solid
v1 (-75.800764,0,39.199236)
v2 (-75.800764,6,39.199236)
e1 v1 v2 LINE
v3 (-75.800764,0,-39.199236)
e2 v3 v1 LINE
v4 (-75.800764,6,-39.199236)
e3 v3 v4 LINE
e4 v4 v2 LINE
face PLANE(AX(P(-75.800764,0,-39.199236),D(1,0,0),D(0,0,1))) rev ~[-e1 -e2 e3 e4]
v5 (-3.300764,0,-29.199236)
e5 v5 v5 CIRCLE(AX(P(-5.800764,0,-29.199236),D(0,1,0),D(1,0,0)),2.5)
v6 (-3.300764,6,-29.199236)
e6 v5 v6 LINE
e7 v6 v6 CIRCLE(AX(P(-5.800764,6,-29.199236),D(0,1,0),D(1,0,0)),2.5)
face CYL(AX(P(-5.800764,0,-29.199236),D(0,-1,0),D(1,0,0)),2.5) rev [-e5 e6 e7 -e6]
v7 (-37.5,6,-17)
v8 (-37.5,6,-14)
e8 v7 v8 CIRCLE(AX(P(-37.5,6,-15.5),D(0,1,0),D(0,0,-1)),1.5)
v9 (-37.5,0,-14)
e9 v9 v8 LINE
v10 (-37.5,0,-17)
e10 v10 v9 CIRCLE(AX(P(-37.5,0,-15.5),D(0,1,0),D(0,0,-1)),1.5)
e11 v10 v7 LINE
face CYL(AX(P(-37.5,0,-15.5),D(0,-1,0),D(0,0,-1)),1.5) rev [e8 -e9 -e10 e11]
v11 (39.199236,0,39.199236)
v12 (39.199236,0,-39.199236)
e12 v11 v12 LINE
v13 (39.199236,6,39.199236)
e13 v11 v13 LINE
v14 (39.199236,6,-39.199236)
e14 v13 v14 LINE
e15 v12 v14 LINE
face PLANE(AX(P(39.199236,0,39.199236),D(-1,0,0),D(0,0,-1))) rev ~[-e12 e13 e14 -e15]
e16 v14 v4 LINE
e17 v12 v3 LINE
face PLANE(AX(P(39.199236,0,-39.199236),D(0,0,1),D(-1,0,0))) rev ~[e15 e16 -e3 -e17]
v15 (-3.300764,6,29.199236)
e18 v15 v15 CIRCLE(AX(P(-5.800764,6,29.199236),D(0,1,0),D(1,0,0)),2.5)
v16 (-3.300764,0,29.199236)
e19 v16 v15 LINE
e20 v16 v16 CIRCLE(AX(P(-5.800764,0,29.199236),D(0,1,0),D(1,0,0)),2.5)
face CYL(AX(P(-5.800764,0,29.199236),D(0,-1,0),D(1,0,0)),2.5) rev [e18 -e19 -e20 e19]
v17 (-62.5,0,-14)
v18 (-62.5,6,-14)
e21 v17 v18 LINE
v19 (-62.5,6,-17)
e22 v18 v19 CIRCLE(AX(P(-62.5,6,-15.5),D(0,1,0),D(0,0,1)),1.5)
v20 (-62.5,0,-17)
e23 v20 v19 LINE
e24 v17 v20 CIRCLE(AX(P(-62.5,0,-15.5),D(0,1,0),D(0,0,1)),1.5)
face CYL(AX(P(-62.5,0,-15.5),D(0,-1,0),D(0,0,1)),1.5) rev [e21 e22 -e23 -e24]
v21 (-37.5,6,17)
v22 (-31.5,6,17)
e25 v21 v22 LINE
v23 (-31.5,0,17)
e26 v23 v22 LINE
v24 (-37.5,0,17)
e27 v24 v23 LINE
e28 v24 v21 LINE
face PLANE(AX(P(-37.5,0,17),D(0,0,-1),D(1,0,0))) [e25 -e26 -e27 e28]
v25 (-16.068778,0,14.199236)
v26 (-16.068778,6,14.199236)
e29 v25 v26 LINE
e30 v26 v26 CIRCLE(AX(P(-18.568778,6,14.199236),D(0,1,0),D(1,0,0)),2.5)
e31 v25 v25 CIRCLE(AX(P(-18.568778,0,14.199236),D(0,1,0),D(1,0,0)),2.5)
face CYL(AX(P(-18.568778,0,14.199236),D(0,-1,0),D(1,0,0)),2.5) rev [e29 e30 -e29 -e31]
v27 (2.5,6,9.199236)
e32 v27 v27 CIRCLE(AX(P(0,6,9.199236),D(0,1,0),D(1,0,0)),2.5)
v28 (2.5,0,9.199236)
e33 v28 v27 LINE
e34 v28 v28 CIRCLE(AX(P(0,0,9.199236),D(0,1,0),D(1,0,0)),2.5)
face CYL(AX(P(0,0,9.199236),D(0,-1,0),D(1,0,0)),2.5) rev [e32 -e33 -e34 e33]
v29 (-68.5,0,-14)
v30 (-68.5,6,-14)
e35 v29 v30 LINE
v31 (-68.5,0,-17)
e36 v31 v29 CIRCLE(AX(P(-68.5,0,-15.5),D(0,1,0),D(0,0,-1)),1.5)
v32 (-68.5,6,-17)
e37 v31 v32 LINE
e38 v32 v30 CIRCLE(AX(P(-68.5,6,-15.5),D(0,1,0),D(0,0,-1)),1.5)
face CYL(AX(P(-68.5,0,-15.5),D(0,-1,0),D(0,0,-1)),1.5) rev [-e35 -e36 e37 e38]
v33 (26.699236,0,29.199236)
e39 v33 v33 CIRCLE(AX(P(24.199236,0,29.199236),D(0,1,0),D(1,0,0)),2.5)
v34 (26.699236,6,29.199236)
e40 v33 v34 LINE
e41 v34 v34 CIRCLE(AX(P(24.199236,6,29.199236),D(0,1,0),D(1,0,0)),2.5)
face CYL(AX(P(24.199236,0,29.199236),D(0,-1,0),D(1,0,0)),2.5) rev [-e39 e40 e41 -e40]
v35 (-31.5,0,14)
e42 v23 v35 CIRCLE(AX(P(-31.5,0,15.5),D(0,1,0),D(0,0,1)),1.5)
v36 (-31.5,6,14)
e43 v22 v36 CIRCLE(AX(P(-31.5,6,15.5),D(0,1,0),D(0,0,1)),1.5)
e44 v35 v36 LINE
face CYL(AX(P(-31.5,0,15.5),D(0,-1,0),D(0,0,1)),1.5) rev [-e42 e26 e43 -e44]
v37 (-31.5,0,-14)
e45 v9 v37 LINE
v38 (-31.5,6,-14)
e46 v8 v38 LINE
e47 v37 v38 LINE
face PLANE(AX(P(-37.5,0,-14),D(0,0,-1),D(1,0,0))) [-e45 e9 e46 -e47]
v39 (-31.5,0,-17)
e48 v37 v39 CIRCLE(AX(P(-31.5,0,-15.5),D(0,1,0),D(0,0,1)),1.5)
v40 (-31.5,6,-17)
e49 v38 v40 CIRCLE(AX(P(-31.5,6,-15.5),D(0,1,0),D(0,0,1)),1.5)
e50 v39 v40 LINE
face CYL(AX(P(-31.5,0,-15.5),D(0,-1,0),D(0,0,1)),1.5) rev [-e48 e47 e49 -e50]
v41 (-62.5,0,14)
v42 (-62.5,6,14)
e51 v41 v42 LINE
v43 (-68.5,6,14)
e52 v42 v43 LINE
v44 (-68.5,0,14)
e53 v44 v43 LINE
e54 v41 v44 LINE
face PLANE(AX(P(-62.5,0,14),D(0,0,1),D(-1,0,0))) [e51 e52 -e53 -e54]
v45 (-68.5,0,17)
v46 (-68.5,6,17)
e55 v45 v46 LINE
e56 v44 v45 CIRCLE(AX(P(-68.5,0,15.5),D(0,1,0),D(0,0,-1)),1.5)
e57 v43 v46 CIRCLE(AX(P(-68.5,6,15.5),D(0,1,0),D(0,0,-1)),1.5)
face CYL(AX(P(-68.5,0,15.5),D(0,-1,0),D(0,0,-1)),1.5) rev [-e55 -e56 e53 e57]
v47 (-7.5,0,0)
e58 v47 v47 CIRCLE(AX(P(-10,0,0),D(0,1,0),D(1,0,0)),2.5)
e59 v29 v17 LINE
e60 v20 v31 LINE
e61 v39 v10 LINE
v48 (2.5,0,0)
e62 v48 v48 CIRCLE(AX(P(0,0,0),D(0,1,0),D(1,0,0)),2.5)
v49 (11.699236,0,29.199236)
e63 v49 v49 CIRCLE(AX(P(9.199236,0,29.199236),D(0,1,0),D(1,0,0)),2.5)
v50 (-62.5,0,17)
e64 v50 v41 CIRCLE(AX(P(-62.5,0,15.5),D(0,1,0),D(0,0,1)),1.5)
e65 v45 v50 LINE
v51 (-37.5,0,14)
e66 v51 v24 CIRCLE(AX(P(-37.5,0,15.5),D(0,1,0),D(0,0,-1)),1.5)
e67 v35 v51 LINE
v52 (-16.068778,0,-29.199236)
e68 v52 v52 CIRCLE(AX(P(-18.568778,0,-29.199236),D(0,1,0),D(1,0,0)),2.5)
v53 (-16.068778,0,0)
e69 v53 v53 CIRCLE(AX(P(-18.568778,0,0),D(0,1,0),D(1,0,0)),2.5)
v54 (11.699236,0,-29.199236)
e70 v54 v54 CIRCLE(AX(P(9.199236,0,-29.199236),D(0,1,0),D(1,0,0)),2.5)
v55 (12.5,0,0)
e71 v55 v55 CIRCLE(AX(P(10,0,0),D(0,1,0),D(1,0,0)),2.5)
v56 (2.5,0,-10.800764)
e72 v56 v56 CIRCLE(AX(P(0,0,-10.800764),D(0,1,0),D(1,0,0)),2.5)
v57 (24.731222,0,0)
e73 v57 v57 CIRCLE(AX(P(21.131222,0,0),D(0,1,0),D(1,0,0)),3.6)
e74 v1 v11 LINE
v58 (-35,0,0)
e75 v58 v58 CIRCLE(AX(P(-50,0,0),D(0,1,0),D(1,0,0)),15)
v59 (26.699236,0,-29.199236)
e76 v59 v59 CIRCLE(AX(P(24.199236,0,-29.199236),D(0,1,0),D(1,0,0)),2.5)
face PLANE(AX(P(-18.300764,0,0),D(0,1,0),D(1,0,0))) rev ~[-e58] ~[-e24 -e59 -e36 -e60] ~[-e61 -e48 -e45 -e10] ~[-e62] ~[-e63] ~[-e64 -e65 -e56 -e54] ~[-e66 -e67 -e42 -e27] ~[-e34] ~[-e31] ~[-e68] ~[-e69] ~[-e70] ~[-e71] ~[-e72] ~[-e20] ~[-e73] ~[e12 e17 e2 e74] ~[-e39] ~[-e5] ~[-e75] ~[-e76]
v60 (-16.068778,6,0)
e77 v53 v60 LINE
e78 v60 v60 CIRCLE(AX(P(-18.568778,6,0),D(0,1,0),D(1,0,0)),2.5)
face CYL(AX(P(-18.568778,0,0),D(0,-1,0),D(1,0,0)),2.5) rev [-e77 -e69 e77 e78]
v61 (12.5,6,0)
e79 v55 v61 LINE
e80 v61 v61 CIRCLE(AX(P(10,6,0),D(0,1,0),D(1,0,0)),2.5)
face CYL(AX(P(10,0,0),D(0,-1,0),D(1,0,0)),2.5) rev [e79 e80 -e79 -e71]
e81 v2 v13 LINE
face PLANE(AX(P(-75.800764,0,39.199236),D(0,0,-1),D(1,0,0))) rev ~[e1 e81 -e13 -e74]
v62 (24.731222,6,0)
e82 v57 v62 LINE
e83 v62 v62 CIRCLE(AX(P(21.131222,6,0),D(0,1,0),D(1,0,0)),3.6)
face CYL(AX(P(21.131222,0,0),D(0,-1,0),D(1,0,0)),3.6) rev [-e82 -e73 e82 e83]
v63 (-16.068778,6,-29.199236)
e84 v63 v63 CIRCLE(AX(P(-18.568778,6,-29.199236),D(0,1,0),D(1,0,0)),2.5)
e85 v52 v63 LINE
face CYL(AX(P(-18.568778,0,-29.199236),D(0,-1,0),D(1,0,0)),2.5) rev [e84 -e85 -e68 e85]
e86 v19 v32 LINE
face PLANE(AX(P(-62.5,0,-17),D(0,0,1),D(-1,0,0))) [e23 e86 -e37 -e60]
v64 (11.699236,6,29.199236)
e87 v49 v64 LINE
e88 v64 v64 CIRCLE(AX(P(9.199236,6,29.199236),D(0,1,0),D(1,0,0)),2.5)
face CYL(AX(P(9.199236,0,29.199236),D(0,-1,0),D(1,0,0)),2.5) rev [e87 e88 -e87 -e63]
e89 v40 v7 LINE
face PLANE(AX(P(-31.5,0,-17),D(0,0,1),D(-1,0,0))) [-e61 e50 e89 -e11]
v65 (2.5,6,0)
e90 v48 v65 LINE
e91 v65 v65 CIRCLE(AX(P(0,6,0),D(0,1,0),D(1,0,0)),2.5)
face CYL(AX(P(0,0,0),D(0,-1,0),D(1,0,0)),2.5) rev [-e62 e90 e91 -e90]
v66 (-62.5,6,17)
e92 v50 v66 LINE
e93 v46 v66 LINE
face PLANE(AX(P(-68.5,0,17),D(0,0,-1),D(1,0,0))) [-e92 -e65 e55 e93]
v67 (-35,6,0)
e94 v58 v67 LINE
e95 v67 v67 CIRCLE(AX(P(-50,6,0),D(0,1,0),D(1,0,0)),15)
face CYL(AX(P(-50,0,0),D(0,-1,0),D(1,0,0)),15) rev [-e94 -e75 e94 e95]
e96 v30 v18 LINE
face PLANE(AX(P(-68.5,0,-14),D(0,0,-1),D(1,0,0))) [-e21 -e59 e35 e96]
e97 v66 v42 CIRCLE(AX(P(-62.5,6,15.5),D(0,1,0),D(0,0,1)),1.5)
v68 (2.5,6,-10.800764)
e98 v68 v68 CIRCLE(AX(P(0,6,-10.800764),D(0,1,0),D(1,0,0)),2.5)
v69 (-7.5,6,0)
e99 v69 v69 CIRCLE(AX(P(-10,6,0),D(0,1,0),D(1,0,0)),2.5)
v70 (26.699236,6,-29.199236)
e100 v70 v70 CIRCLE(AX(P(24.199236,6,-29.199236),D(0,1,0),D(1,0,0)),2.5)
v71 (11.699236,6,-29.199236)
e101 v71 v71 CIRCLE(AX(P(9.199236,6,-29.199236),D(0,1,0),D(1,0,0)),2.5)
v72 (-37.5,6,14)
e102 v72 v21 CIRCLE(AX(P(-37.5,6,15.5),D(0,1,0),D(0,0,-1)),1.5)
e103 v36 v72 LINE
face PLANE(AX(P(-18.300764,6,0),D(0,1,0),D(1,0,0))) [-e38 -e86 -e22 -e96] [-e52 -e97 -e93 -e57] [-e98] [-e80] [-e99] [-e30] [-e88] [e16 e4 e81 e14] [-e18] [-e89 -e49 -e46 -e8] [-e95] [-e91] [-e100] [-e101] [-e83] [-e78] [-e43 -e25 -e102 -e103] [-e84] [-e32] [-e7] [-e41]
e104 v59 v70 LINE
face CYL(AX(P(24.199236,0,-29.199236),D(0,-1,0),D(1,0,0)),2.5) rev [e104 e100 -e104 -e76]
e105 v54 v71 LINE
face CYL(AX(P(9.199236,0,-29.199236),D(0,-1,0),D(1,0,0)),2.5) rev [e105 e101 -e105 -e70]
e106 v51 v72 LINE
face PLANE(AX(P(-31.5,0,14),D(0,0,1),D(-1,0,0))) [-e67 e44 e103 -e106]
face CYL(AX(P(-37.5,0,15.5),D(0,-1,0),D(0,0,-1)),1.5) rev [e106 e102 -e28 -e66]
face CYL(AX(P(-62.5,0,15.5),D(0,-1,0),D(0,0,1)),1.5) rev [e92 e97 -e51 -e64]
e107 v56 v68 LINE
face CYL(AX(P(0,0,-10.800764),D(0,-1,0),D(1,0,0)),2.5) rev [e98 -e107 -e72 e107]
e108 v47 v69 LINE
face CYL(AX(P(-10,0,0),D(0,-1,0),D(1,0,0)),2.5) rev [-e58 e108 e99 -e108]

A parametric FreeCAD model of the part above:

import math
import FreeCAD as App
import Part
import Sketcher
from FreeCAD import Vector
Q = App.Units.Quantity


def add_polygon(sketch, points):
    """Adds a closed chain of lines whose ends are joined by coincident constraints."""
    first, n = sketch.GeometryCount, len(points)
    for a, b in zip(points, points[1:] + points[:1]):
        sketch.addGeometry(Part.LineSegment(App.Vector(*a, 0), App.Vector(*b, 0)), False)
    for i in range(n):
        sketch.addConstraint(Sketcher.Constraint("Coincident", first + i, 2, first + (i + 1) % n, 1))

doc = App.newDocument("Part")
params = doc.addObject("Spreadsheet::Sheet", "Params")
for row, (alias, value) in enumerate([
    ("sketch1_width", "115 mm"),
    ("pad1_length", "6 mm"),
    ("sketch2_diameter", "5 mm"),
    ("sketch2_diameter2", "30 mm"),
    ("sketch2_diameter3", "7.2 mm"),
    ("sketch2_radius", "1.5 mm"),
    ("sketch2_width", "6 mm"),
    ("pocket1_length", "6 mm"),
], start=1):
    params.set(f"A{row}", alias)
    params.set(f"B{row}", "=" + value)
    params.setAlias(f"B{row}", alias)

body = doc.addObject("PartDesign::Body", "Body")

# Sketch on XZ plane
sketch1 = body.newObject("Sketcher::SketchObject", "Sketch")
sketch1.AttachmentSupport = (doc.getObject("XZ_Plane"), [""])
sketch1.MapMode = "FlatFace"
add_polygon(sketch1, [(39, 39), (39, -39), (-76, -39), (-76, 39)])  # lines 0-3
sketch1.addConstraint([
    Sketcher.Constraint("Vertical", 0),
    Sketcher.Constraint("Horizontal", 1),
    Sketcher.Constraint("Vertical", 2),
    Sketcher.Constraint("Horizontal", 3),
    Sketcher.Constraint("DistanceX", 1, 2, 1, 1, Q("115 mm")),
    Sketcher.Constraint("DistanceY", 0, 2, 0, 1, Q("78.398473 mm")),
    Sketcher.Constraint("DistanceX", -1, 1, 0, 2, Q("39.199236 mm")),
    Sketcher.Constraint("DistanceY", 0, 2, -1, 1, Q("39.199236 mm")),
])
sketch1.setExpression("Constraints[8]", "Params.sketch1_width")
pad1 = body.newObject("PartDesign::Pad", "Pad")
pad1.Profile = sketch1
pad1.setExpression("Length", "Params.pad1_length")
pad1.Reversed = True

# Sketch on XZ plane
sketch2 = body.newObject("Sketcher::SketchObject", "Sketch001")
sketch2.AttachmentSupport = (doc.getObject("XZ_Plane"), [""])
sketch2.MapMode = "FlatFace"
sketch2.addGeometry([
    Part.Circle(Vector(-18.6, -29.2, 0), Vector(0, 0, 1), 2.5),  # 0
    Part.Circle(Vector(-18.6, 14.2, 0), Vector(0, 0, 1), 2.5),  # 1
    Part.Circle(Vector(24.2, -29.2, 0), Vector(0, 0, 1), 2.5),  # 2
    Part.Circle(Vector(9.2, -29.2, 0), Vector(0, 0, 1), 2.5),  # 3
    Part.Circle(Vector(21.1, 0, 0), Vector(0, 0, 1), 3.6),  # 4
    Part.Circle(Vector(0, 0, 0), Vector(0, 0, 1), 2.5),  # 5
    Part.Circle(Vector(-10, 0, 0), Vector(0, 0, 1), 2.5),  # 6
    Part.Circle(Vector(-18.6, 0, 0), Vector(0, 0, 1), 2.5),  # 7
    Part.Circle(Vector(10, 0, 0), Vector(0, 0, 1), 2.5),  # 8
    Part.Circle(Vector(-5.8, -29.2, 0), Vector(0, 0, 1), 2.5),  # 9
    Part.Circle(Vector(-5.8, 29.2, 0), Vector(0, 0, 1), 2.5),  # 10
    Part.Circle(Vector(24.2, 29.2, 0), Vector(0, 0, 1), 2.5),  # 11
    Part.Circle(Vector(9.2, 29.2, 0), Vector(0, 0, 1), 2.5),  # 12
    Part.Circle(Vector(0, 9.2, 0), Vector(0, 0, 1), 2.5),  # 13
    Part.Circle(Vector(0, -10.8, 0), Vector(0, 0, 1), 2.5),  # 14
    Part.Circle(Vector(-50, 0, 0), Vector(0, 0, 1), 15),  # 15
    Part.LineSegment(Vector(-68.5, -14, 0), Vector(-62.5, -14, 0)),  # 16
    Part.ArcOfCircle(Part.Circle(Vector(-62.5, -15.5, 0), Vector(0, 0, 1), 1.5), math.radians(-90), math.radians(90)),  # 17
    Part.LineSegment(Vector(-62.5, -17, 0), Vector(-68.5, -17, 0)),  # 18
    Part.ArcOfCircle(Part.Circle(Vector(-68.5, -15.5, 0), Vector(0, 0, 1), 1.5), math.radians(90), math.radians(270)),  # 19
    Part.LineSegment(Vector(-37.5, -14, 0), Vector(-31.5, -14, 0)),  # 20
    Part.ArcOfCircle(Part.Circle(Vector(-31.5, -15.5, 0), Vector(0, 0, 1), 1.5), math.radians(-90), math.radians(90)),  # 21
    Part.LineSegment(Vector(-31.5, -17, 0), Vector(-37.5, -17, 0)),  # 22
    Part.ArcOfCircle(Part.Circle(Vector(-37.5, -15.5, 0), Vector(0, 0, 1), 1.5), math.radians(90), math.radians(270)),  # 23
    Part.LineSegment(Vector(-37.5, 17, 0), Vector(-31.5, 17, 0)),  # 24
    Part.ArcOfCircle(Part.Circle(Vector(-31.5, 15.5, 0), Vector(0, 0, 1), 1.5), math.radians(-90), math.radians(90)),  # 25
    Part.LineSegment(Vector(-31.5, 14, 0), Vector(-37.5, 14, 0)),  # 26
    Part.ArcOfCircle(Part.Circle(Vector(-37.5, 15.5, 0), Vector(0, 0, 1), 1.5), math.radians(90), math.radians(270)),  # 27
    Part.LineSegment(Vector(-68.5, 17, 0), Vector(-62.5, 17, 0)),  # 28
    Part.ArcOfCircle(Part.Circle(Vector(-62.5, 15.5, 0), Vector(0, 0, 1), 1.5), math.radians(-90), math.radians(90)),  # 29
    Part.LineSegment(Vector(-62.5, 14, 0), Vector(-68.5, 14, 0)),  # 30
    Part.ArcOfCircle(Part.Circle(Vector(-68.5, 15.5, 0), Vector(0, 0, 1), 1.5), math.radians(90), math.radians(270)),  # 31
], False)
sketch2.addConstraint([
    Sketcher.Constraint("Tangent", 16, 2, 17, 2),
    Sketcher.Constraint("Tangent", 17, 1, 18, 1),
    Sketcher.Constraint("Tangent", 18, 2, 19, 2),
    Sketcher.Constraint("Tangent", 19, 1, 16, 1),
    Sketcher.Constraint("Tangent", 20, 2, 21, 2),
    Sketcher.Constraint("Tangent", 21, 1, 22, 1),
    Sketcher.Constraint("Tangent", 22, 2, 23, 2),
    Sketcher.Constraint("Tangent", 23, 1, 20, 1),
    Sketcher.Constraint("Tangent", 24, 2, 25, 2),
    Sketcher.Constraint("Tangent", 25, 1, 26, 1),
    Sketcher.Constraint("Tangent", 26, 2, 27, 2),
    Sketcher.Constraint("Tangent", 27, 1, 24, 1),
    Sketcher.Constraint("Tangent", 28, 2, 29, 2),
    Sketcher.Constraint("Tangent", 29, 1, 30, 1),
    Sketcher.Constraint("Tangent", 30, 2, 31, 2),
    Sketcher.Constraint("Tangent", 31, 1, 28, 1),
    Sketcher.Constraint("Horizontal", 16),
    Sketcher.Constraint("Horizontal", 18),
    Sketcher.Constraint("Horizontal", 20),
    Sketcher.Constraint("Horizontal", 22),
    Sketcher.Constraint("Horizontal", 24),
    Sketcher.Constraint("Horizontal", 26),
    Sketcher.Constraint("Horizontal", 28),
    Sketcher.Constraint("Horizontal", 30),
    Sketcher.Constraint("Coincident", 5, 3, -1, 1),
    Sketcher.Constraint("Equal", 0, 1),
    Sketcher.Constraint("Equal", 1, 2),
    Sketcher.Constraint("Equal", 2, 3),
    Sketcher.Constraint("Equal", 3, 5),
    Sketcher.Constraint("Equal", 5, 6),
    Sketcher.Constraint("Equal", 6, 7),
    Sketcher.Constraint("Equal", 7, 8),
    Sketcher.Constraint("Equal", 8, 9),
    Sketcher.Constraint("Equal", 9, 10),
    Sketcher.Constraint("Equal", 10, 11),
    Sketcher.Constraint("Equal", 11, 12),
    Sketcher.Constraint("Equal", 12, 13),
    Sketcher.Constraint("Equal", 13, 14),
    Sketcher.Constraint("Equal", 19, 21),
    Sketcher.Constraint("Equal", 23, 25),
    Sketcher.Constraint("Equal", 27, 29),
    Sketcher.Constraint("Symmetric", 6, 3, 8, 3, -1, 1),
    Sketcher.Constraint("Symmetric", 9, 3, 10, 3, -1),
    Sketcher.Constraint("Symmetric", 2, 3, 11, 3, -1),
    Sketcher.Constraint("Symmetric", 3, 3, 12, 3, -1),
    Sketcher.Constraint("Symmetric", 21, 3, 25, 3, -1),
    Sketcher.Constraint("Symmetric", 17, 3, 29, 3, -1),
    Sketcher.Constraint("PointOnObject", 4, 3, -1),
    Sketcher.Constraint("PointOnObject", 6, 3, -1),
    Sketcher.Constraint("PointOnObject", 7, 3, -1),
    Sketcher.Constraint("PointOnObject", 13, 3, -2),
    Sketcher.Constraint("PointOnObject", 14, 3, -2),
    Sketcher.Constraint("PointOnObject", 15, 3, -1),
    Sketcher.Constraint("Horizontal", 0, 3, 2, 3),
    Sketcher.Constraint("Horizontal", 2, 3, 3, 3),
    Sketcher.Constraint("Horizontal", 3, 3, 9, 3),
    Sketcher.Constraint("Horizontal", 19, 3, 21, 3),
    Sketcher.Constraint("Vertical", 0, 3, 1, 3),
    Sketcher.Constraint("Vertical", 1, 3, 7, 3),
    Sketcher.Constraint("Vertical", 23, 3, 27, 3),
    Sketcher.Constraint("Vertical", 19, 3, 31, 3),
    Sketcher.Constraint("Equal", 18, 20),
    Sketcher.Constraint("Diameter", 0, Q("5 mm")),
    Sketcher.Constraint("Diameter", 15, Q("30 mm")),
    Sketcher.Constraint("Diameter", 4, Q("7.2 mm")),
    Sketcher.Constraint("Radius", 17, Q("1.5 mm")),
    Sketcher.Constraint("DistanceX", 16, 1, 16, 2, Q("6 mm")),
    Sketcher.Constraint("DistanceX", 6, 3, -1, 1, Q("10 mm")),
    Sketcher.Constraint("DistanceX", 15, 3, -1, 1, Q("50 mm")),
    Sketcher.Constraint("DistanceY", 16, 2, -1, 1, Q("14 mm")),
    Sketcher.Constraint("DistanceX", 3, 3, 2, 3, Q("15 mm")),
    Sketcher.Constraint("DistanceX", 9, 3, 3, 3, Q("15 mm")),
    Sketcher.Constraint("DistanceY", 1, 3, 10, 3, Q("15 mm")),
    Sketcher.Constraint("DistanceY", 13, 3, 1, 3, Q("5 mm")),
    Sketcher.Constraint("DistanceY", 14, 3, 13, 3, Q("20 mm")),
    Sketcher.Constraint("DistanceX", 17, 3, 23, 3, Q("25 mm")),
    Sketcher.Constraint("DistanceX", 17, 3, -1, 1, Q("62.5 mm")),
    Sketcher.Constraint("DistanceX", 1, 3, 4, 3, Q("39.7 mm")),
    Sketcher.Constraint("DistanceX", 0, 3, -1, 1, Q("18.568778 mm")),
    Sketcher.Constraint("DistanceY", 0, 3, -1, 1, Q("29.199236 mm")),
    Sketcher.Constraint("DistanceX", -1, 1, 2, 3, Q("24.199236 mm")),
])
sketch2.setExpression("Constraints[62]", "Params.sketch2_diameter")
sketch2.setExpression("Constraints[63]", "Params.sketch2_diameter2")
sketch2.setExpression("Constraints[64]", "Params.sketch2_diameter3")
sketch2.setExpression("Constraints[65]", "Params.sketch2_radius")
sketch2.setExpression("Constraints[66]", "Params.sketch2_width")
pocket1 = body.newObject("PartDesign::Pocket", "Pocket")
pocket1.Profile = sketch2
pocket1.setExpression("Length", "Params.pocket1_length")

doc.recompute()
